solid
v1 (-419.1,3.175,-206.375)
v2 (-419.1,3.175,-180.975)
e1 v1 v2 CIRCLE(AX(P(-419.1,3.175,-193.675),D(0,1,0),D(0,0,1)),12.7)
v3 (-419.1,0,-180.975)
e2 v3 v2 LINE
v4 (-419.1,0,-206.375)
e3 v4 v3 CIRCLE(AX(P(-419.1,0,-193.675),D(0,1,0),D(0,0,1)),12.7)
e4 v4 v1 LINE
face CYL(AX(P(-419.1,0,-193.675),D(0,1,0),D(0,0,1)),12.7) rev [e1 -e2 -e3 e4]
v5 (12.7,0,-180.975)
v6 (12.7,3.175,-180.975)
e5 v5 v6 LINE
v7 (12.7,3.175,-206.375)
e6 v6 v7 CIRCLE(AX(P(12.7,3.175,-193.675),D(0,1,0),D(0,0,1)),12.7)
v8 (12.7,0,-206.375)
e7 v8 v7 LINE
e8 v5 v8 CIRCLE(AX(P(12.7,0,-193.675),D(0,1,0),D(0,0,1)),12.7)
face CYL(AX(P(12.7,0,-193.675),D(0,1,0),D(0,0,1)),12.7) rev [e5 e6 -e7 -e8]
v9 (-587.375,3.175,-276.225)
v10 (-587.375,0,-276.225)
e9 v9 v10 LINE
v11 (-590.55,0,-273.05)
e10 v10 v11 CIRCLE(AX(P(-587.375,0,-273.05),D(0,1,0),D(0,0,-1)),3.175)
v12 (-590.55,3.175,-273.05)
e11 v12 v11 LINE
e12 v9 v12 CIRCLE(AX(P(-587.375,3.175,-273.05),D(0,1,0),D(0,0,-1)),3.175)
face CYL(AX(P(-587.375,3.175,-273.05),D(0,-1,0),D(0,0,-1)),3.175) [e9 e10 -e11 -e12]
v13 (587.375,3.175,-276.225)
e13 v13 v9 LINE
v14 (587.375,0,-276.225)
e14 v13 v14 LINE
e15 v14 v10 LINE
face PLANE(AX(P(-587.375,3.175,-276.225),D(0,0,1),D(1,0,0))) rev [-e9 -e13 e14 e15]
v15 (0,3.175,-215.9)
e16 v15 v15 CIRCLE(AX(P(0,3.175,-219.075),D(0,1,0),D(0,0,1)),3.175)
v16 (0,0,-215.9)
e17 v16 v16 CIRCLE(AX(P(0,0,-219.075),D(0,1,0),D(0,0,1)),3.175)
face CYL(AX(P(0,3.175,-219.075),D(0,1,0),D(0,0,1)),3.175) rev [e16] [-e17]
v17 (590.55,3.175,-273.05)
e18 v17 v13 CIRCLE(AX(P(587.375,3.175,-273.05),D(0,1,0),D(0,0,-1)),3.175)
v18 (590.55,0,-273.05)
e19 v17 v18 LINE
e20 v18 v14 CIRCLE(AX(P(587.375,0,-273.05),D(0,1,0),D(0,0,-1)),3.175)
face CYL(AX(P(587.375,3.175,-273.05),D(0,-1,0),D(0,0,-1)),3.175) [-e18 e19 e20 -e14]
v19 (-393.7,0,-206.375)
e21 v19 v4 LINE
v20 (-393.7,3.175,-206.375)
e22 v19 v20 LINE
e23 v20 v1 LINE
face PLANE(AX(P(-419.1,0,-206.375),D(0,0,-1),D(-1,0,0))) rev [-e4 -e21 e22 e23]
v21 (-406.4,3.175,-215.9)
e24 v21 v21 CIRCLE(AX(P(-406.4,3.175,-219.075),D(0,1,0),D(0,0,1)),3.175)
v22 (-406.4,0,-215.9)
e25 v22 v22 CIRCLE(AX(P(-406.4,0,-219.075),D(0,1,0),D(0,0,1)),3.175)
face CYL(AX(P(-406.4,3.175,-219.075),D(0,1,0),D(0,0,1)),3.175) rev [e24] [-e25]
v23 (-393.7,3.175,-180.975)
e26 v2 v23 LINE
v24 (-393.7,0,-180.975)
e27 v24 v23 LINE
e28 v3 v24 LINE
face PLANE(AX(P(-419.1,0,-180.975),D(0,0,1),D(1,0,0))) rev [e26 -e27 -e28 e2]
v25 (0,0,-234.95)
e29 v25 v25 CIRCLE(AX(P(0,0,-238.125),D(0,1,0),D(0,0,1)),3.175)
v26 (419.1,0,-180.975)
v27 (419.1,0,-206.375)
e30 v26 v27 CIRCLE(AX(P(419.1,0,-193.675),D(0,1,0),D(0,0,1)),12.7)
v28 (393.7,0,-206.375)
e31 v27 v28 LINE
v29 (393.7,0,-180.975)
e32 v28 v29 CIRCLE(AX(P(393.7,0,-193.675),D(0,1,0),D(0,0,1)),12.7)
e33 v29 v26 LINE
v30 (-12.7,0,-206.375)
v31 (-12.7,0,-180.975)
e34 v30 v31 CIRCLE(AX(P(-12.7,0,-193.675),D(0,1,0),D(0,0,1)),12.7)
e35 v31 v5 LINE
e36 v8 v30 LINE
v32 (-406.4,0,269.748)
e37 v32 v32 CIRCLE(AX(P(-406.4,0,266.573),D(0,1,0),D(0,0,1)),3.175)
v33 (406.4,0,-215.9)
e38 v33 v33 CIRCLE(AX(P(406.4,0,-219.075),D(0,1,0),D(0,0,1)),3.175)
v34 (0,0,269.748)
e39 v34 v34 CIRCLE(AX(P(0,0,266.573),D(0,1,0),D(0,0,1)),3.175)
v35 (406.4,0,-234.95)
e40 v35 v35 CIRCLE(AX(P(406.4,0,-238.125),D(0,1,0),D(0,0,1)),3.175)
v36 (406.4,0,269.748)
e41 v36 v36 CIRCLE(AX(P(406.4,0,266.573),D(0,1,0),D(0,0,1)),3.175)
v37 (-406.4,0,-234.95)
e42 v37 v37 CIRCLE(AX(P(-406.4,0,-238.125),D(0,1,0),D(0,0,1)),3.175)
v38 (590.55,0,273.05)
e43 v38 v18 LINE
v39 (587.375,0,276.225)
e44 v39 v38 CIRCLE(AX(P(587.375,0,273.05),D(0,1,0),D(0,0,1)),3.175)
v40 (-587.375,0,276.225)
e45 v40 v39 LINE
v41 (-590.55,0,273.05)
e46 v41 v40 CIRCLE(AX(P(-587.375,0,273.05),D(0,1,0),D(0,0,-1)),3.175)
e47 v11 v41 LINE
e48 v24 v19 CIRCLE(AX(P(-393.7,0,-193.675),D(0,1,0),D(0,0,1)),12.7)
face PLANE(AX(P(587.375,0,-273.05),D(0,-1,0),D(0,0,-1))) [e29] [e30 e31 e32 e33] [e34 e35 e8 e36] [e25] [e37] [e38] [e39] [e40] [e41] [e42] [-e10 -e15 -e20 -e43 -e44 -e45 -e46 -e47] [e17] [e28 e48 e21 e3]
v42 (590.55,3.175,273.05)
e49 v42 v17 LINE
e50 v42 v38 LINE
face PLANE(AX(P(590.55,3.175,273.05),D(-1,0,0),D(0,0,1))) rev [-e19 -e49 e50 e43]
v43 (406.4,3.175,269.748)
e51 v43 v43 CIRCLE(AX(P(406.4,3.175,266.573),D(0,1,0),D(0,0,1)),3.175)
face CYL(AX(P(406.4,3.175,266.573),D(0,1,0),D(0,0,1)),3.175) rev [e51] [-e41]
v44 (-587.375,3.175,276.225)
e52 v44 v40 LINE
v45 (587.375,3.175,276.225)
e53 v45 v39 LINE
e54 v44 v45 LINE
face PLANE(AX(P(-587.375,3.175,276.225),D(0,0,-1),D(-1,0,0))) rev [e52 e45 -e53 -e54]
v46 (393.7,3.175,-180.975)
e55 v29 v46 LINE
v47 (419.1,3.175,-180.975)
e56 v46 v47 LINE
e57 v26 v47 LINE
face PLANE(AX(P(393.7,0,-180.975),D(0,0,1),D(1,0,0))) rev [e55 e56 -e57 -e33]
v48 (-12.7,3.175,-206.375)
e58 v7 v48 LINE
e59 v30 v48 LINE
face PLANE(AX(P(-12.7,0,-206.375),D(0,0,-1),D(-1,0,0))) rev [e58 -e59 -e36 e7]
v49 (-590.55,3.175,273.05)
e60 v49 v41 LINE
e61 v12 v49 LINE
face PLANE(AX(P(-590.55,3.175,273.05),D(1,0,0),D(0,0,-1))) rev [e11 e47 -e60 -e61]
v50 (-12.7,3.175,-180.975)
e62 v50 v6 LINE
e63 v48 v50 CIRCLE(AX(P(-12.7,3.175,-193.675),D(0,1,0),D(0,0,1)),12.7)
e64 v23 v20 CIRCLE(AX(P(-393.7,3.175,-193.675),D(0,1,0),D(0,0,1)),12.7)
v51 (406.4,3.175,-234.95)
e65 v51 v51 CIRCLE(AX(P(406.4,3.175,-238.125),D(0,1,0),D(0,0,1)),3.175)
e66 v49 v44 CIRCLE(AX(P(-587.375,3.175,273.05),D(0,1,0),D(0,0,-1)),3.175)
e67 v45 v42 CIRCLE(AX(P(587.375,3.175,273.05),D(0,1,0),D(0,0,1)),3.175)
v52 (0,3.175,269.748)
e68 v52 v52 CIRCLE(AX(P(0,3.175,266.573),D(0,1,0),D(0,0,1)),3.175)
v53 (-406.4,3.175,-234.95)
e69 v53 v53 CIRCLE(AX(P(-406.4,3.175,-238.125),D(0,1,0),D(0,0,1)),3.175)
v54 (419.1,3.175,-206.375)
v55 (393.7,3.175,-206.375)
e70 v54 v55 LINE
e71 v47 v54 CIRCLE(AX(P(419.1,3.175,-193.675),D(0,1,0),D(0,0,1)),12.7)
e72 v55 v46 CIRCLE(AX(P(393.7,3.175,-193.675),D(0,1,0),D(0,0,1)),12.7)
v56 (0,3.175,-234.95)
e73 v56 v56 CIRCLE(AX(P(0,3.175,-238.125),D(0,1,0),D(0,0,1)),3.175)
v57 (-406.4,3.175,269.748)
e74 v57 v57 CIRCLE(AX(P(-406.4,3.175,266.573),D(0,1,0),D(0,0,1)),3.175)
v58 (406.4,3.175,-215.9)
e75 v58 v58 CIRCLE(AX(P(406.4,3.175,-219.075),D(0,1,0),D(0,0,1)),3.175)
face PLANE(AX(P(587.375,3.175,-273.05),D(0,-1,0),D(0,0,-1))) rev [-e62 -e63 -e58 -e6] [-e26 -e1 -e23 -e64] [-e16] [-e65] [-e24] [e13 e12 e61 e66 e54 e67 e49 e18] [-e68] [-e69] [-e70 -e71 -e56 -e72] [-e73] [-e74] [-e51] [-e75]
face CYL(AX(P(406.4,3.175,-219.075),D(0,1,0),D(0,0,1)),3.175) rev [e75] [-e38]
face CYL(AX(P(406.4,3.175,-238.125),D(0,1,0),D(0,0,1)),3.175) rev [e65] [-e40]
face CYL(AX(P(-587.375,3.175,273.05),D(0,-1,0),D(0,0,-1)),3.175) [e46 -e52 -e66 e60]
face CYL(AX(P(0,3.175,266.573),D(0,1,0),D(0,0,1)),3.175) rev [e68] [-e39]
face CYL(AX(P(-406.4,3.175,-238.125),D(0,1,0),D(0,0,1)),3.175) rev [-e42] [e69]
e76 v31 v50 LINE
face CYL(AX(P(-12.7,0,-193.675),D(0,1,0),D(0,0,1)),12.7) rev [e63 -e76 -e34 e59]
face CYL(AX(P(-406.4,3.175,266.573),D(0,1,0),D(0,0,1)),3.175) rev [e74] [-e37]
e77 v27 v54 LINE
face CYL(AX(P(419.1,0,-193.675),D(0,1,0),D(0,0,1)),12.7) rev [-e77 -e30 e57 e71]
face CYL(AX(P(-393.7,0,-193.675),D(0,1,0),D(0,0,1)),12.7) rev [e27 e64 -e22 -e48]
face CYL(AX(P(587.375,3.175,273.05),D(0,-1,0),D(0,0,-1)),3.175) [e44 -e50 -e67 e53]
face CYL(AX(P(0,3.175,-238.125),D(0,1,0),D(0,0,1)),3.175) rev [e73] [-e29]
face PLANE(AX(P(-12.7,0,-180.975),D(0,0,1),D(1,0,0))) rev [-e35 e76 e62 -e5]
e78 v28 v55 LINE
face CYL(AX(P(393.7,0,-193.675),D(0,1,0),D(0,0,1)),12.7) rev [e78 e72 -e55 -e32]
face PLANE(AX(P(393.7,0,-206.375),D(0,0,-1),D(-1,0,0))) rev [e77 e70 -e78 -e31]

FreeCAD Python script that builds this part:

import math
import FreeCAD as App
import Part
import Sketcher
Q = App.Units.Quantity

doc = App.newDocument("Part")
body = doc.addObject("PartDesign::Body", "Body")

sketch1 = body.newObject("Sketcher::SketchObject", "Sketch")
sketch1.AttachmentSupport = (doc.getObject("XZ_Plane"), [""])
sketch1.MapMode = "FlatFace"
sketch1.addGeometry(Part.LineSegment(App.Vector(-587.4, 276.2, 0), App.Vector(587.4, 276.2, 0)), False)
sketch1.addGeometry(Part.ArcOfCircle(Part.Circle(App.Vector(587.4, 273, 0), App.Vector(0, 0, 1), 3.2), math.radians(0), math.radians(90)), False)
sketch1.addGeometry(Part.LineSegment(App.Vector(590.5, 273.1, 0), App.Vector(590.5, -273.1, 0)), False)
sketch1.addGeometry(Part.ArcOfCircle(Part.Circle(App.Vector(587.4, -273, 0), App.Vector(0, 0, 1), 3.2), math.radians(-90), math.radians(0)), False)
sketch1.addGeometry(Part.LineSegment(App.Vector(587.4, -276.2, 0), App.Vector(-587.4, -276.2, 0)), False)
sketch1.addGeometry(Part.ArcOfCircle(Part.Circle(App.Vector(-587.4, -273, 0), App.Vector(0, 0, 1), 3.2), math.radians(-180), math.radians(-90)), False)
sketch1.addGeometry(Part.LineSegment(App.Vector(-590.5, -273.1, 0), App.Vector(-590.5, 273.1, 0)), False)
sketch1.addGeometry(Part.ArcOfCircle(Part.Circle(App.Vector(-587.4, 273, 0), App.Vector(0, 0, 1), 3.2), math.radians(90), math.radians(180)), False)
sketch1.addConstraint(Sketcher.Constraint("Tangent", 0, 2, 1, 2))
sketch1.addConstraint(Sketcher.Constraint("Tangent", 1, 1, 2, 1))
sketch1.addConstraint(Sketcher.Constraint("Tangent", 2, 2, 3, 2))
sketch1.addConstraint(Sketcher.Constraint("Tangent", 3, 1, 4, 1))
sketch1.addConstraint(Sketcher.Constraint("Tangent", 4, 2, 5, 2))
sketch1.addConstraint(Sketcher.Constraint("Tangent", 5, 1, 6, 1))
sketch1.addConstraint(Sketcher.Constraint("Tangent", 6, 2, 7, 2))
sketch1.addConstraint(Sketcher.Constraint("Tangent", 7, 1, 0, 1))
sketch1.addConstraint(Sketcher.Constraint("Horizontal", 0))
sketch1.addConstraint(Sketcher.Constraint("Vertical", 2))
sketch1.addConstraint(Sketcher.Constraint("Horizontal", 4))
sketch1.addConstraint(Sketcher.Constraint("Vertical", 6))
sketch1.addConstraint(Sketcher.Constraint("Equal", 1, 3))
sketch1.addConstraint(Sketcher.Constraint("Equal", 3, 5))
sketch1.addConstraint(Sketcher.Constraint("Equal", 5, 7))
sketch1.addConstraint(Sketcher.Constraint("Symmetric", 1, 3, 5, 3, -1, 1))
sketch1.addConstraint(Sketcher.Constraint("DistanceY", 2, 2, 2, 1, Q("21.5 in")))
sketch1.addConstraint(Sketcher.Constraint("Radius", 1, Q("0.125 in")))
sketch1.addConstraint(Sketcher.Constraint("DistanceX", 0, 1, 0, 2, Q("46.25 in")))
pad1 = body.newObject("PartDesign::Pad", "Pad")
pad1.Profile = sketch1
pad1.Length = Q("0.125 in")
pad1.Reversed = True

sketch2 = body.newObject("Sketcher::SketchObject", "Sketch001")
sketch2.AttachmentSupport = (doc.getObject("XZ_Plane"), [""])
sketch2.MapMode = "FlatFace"
sketch2.AttachmentOffset = App.Placement(App.Vector(0, 0, -0.125 * 25.4), App.Rotation())
sketch2.addGeometry(Part.Circle(App.Vector(-406.4, -219.1, 0), App.Vector(0, 0, 1), 3.2), False)
sketch2.addGeometry(Part.Circle(App.Vector(0, -219.1, 0), App.Vector(0, 0, 1), 3.2), False)
sketch2.addGeometry(Part.Circle(App.Vector(406.4, -219.1, 0), App.Vector(0, 0, 1), 3.2), False)
sketch2.addGeometry(Part.Circle(App.Vector(-406.4, 266.6, 0), App.Vector(0, 0, 1), 3.2), False)
sketch2.addGeometry(Part.Circle(App.Vector(0, 266.6, 0), App.Vector(0, 0, 1), 3.2), False)
sketch2.addGeometry(Part.Circle(App.Vector(406.4, 266.6, 0), App.Vector(0, 0, 1), 3.2), False)
sketch2.addGeometry(Part.Circle(App.Vector(-406.4, -238.1, 0), App.Vector(0, 0, 1), 3.2), False)
sketch2.addGeometry(Part.Circle(App.Vector(0, -238.1, 0), App.Vector(0, 0, 1), 3.2), False)
sketch2.addGeometry(Part.Circle(App.Vector(406.4, -238.1, 0), App.Vector(0, 0, 1), 3.2), False)
sketch2.addConstraint(Sketcher.Constraint("Equal", 0, 1))
sketch2.addConstraint(Sketcher.Constraint("Equal", 1, 2))
sketch2.addConstraint(Sketcher.Constraint("Equal", 2, 3))
sketch2.addConstraint(Sketcher.Constraint("Equal", 3, 4))
sketch2.addConstraint(Sketcher.Constraint("Equal", 4, 5))
sketch2.addConstraint(Sketcher.Constraint("Equal", 5, 6))
sketch2.addConstraint(Sketcher.Constraint("Equal", 6, 7))
sketch2.addConstraint(Sketcher.Constraint("Equal", 7, 8))
sketch2.addConstraint(Sketcher.Constraint("Symmetric", 0, 3, 2, 3, -2))
sketch2.addConstraint(Sketcher.Constraint("Symmetric", 3, 3, 5, 3, -2))
sketch2.addConstraint(Sketcher.Constraint("Symmetric", 6, 3, 8, 3, -2))
sketch2.addConstraint(Sketcher.Constraint("PointOnObject", 1, 3, -2))
sketch2.addConstraint(Sketcher.Constraint("PointOnObject", 4, 3, -2))
sketch2.addConstraint(Sketcher.Constraint("PointOnObject", 7, 3, -2))
sketch2.addConstraint(Sketcher.Constraint("Horizontal", 0, 3, 1, 3))
sketch2.addConstraint(Sketcher.Constraint("Horizontal", 3, 3, 4, 3))
sketch2.addConstraint(Sketcher.Constraint("Horizontal", 6, 3, 7, 3))
sketch2.addConstraint(Sketcher.Constraint("Vertical", 0, 3, 3, 3))
sketch2.addConstraint(Sketcher.Constraint("Vertical", 3, 3, 6, 3))
sketch2.addConstraint(Sketcher.Constraint("Diameter", 0, Q("0.25 in")))
sketch2.addConstraint(Sketcher.Constraint("DistanceX", 0, 3, -1, 1, Q("16 in")))
sketch2.addConstraint(Sketcher.Constraint("DistanceY", 0, 3, 3, 3, Q("19.12 in")))
sketch2.addConstraint(Sketcher.Constraint("DistanceY", 6, 3, 0, 3, Q("0.75 in")))
sketch2.addConstraint(Sketcher.Constraint("DistanceY", 0, 3, -1, 1, Q("8.625 in")))
doc.recompute()
hole = body.newObject("PartDesign::Hole", "Hole")
hole.Profile = sketch2
hole.ThreadType = "None"
hole.Diameter = Q("0.25 in")
hole.DepthType = "ThroughAll"
hole.Reversed = True

sketch3 = body.newObject("Sketcher::SketchObject", "Sketch002")
sketch3.AttachmentSupport = (doc.getObject("XZ_Plane"), [""])
sketch3.MapMode = "FlatFace"
sketch3.AttachmentOffset = App.Placement(App.Vector(0, 0, -0.125 * 25.4), App.Rotation())
sketch3.addGeometry(Part.LineSegment(App.Vector(-394, -206, 0), App.Vector(-419, -206, 0)), False)
sketch3.addGeometry(Part.ArcOfCircle(Part.Circle(App.Vector(-419, -194, 0), App.Vector(0, 0, 1), 13), math.radians(90), math.radians(270)), False)
sketch3.addGeometry(Part.LineSegment(App.Vector(-419, -181, 0), App.Vector(-394, -181, 0)), False)
sketch3.addGeometry(Part.ArcOfCircle(Part.Circle(App.Vector(-394, -194, 0), App.Vector(0, 0, 1), 13), math.radians(-90), math.radians(90)), False)
sketch3.addGeometry(Part.LineSegment(App.Vector(13, -206, 0), App.Vector(-13, -206, 0)), False)
sketch3.addGeometry(Part.ArcOfCircle(Part.Circle(App.Vector(-13, -194, 0), App.Vector(0, 0, 1), 13), math.radians(90), math.radians(270)), False)
sketch3.addGeometry(Part.LineSegment(App.Vector(-13, -181, 0), App.Vector(13, -181, 0)), False)
sketch3.addGeometry(Part.ArcOfCircle(Part.Circle(App.Vector(13, -194, 0), App.Vector(0, 0, 1), 13), math.radians(-90), math.radians(90)), False)
sketch3.addGeometry(Part.LineSegment(App.Vector(419, -206, 0), App.Vector(394, -206, 0)), False)
sketch3.addGeometry(Part.ArcOfCircle(Part.Circle(App.Vector(394, -194, 0), App.Vector(0, 0, 1), 13), math.radians(90), math.radians(270)), False)
sketch3.addGeometry(Part.LineSegment(App.Vector(394, -181, 0), App.Vector(419, -181, 0)), False)
sketch3.addGeometry(Part.ArcOfCircle(Part.Circle(App.Vector(419, -194, 0), App.Vector(0, 0, 1), 13), math.radians(-90), math.radians(90)), False)
sketch3.addConstraint(Sketcher.Constraint("Tangent", 0, 2, 1, 2))
sketch3.addConstraint(Sketcher.Constraint("Tangent", 1, 1, 2, 1))
sketch3.addConstraint(Sketcher.Constraint("Tangent", 2, 2, 3, 2))
sketch3.addConstraint(Sketcher.Constraint("Tangent", 3, 1, 0, 1))
sketch3.addConstraint(Sketcher.Constraint("Tangent", 4, 2, 5, 2))
sketch3.addConstraint(Sketcher.Constraint("Tangent", 5, 1, 6, 1))
sketch3.addConstraint(Sketcher.Constraint("Tangent", 6, 2, 7, 2))
sketch3.addConstraint(Sketcher.Constraint("Tangent", 7, 1, 4, 1))
sketch3.addConstraint(Sketcher.Constraint("Tangent", 8, 2, 9, 2))
sketch3.addConstraint(Sketcher.Constraint("Tangent", 9, 1, 10, 1))
sketch3.addConstraint(Sketcher.Constraint("Tangent", 10, 2, 11, 2))
sketch3.addConstraint(Sketcher.Constraint("Tangent", 11, 1, 8, 1))
sketch3.addConstraint(Sketcher.Constraint("Horizontal", 0))
sketch3.addConstraint(Sketcher.Constraint("Horizontal", 2))
sketch3.addConstraint(Sketcher.Constraint("Horizontal", 4))
sketch3.addConstraint(Sketcher.Constraint("Horizontal", 6))
sketch3.addConstraint(Sketcher.Constraint("Horizontal", 8))
sketch3.addConstraint(Sketcher.Constraint("Horizontal", 10))
sketch3.addConstraint(Sketcher.Constraint("Equal", 3, 5))
sketch3.addConstraint(Sketcher.Constraint("Equal", 7, 9))
sketch3.addConstraint(Sketcher.Constraint("Symmetric", 3, 3, 9, 3, -2))
sketch3.addConstraint(Sketcher.Constraint("Horizontal", 3, 3, 5, 3))
sketch3.addConstraint(Sketcher.Constraint("Equal", 2, 4))
sketch3.addConstraint(Sketcher.Constraint("Equal", 6, 8))
sketch3.addConstraint(Sketcher.Constraint("Radius", 1, Q("0.5 in")))
sketch3.addConstraint(Sketcher.Constraint("DistanceX", 0, 2, 0, 1, Q("1 in")))
sketch3.addConstraint(Sketcher.Constraint("DistanceX", 3, 3, 5, 3, Q("15 in")))
sketch3.addConstraint(Sketcher.Constraint("DistanceX", 7, 3, 9, 3, Q("15 in")))
sketch3.addConstraint(Sketcher.Constraint("DistanceY", 1, 3, -1, 1, Q("7.625 in")))
pocket1 = body.newObject("PartDesign::Pocket", "Pocket")
pocket1.Profile = sketch3
pocket1.Type = "ThroughAll"
pocket1.Reversed = True

doc.recompute()
